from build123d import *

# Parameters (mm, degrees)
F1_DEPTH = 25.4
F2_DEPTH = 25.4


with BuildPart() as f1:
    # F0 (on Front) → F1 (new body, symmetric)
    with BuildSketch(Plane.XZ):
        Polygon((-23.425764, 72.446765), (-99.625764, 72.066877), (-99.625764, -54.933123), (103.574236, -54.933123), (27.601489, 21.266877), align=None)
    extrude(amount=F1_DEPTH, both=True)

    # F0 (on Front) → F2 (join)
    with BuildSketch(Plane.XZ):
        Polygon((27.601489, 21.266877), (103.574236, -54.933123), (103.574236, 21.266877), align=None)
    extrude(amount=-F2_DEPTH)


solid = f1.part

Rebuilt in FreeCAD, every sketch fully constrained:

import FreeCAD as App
import Part
import Sketcher
from FreeCAD import Vector
Q = App.Units.Quantity

doc = App.newDocument("Part")
params = doc.addObject("Spreadsheet::Sheet", "Params")
for row, (alias, value) in enumerate([
    ("sketch1_width", "8 in"),
    ("sketch1_height", "5 in"),
    ("pad1_length", "2 in"),
    ("sketch2_height", "3 in"),
    ("pad2_length", "1 in"),
], start=1):
    params.set(f"A{row}", alias)
    params.set(f"B{row}", "=" + value)
    params.setAlias(f"B{row}", alias)

body = doc.addObject("PartDesign::Body", "Body")

# Sketch on XZ plane
sketch1 = doc.addObject("Sketcher::SketchObject", "Sketch")
body.addObject(sketch1)
sketch1.AttachmentSupport = (doc.XZ_Plane, [""])
sketch1.MapMode = "FlatFace"
sketch1.addGeometry(Part.LineSegment(Vector(-23, 72, 0), Vector(-100, 72, 0)), False)
sketch1.addGeometry(Part.LineSegment(Vector(-100, 72, 0), Vector(-100, -55, 0)), False)
sketch1.addGeometry(Part.LineSegment(Vector(-100, -55, 0), Vector(104, -55, 0)), False)
sketch1.addGeometry(Part.LineSegment(Vector(104, -55, 0), Vector(28, 21, 0)), False)
sketch1.addGeometry(Part.LineSegment(Vector(28, 21, 0), Vector(-23, 72, 0)), False)
sketch1.addConstraint(Sketcher.Constraint("Coincident", 0, 2, 1, 1))
sketch1.addConstraint(Sketcher.Constraint("Coincident", 1, 2, 2, 1))
sketch1.addConstraint(Sketcher.Constraint("Coincident", 2, 2, 3, 1))
sketch1.addConstraint(Sketcher.Constraint("Coincident", 3, 2, 4, 1))
sketch1.addConstraint(Sketcher.Constraint("Coincident", 4, 2, 0, 1))
sketch1.addConstraint(Sketcher.Constraint("Vertical", 1))
sketch1.addConstraint(Sketcher.Constraint("Horizontal", 2))
sketch1.addConstraint(Sketcher.Constraint("Parallel", 3, 4))
sketch1.addConstraint(Sketcher.Constraint("DistanceX", 2, 1, 2, 2, Q("8 in")))
sketch1.addConstraint(Sketcher.Constraint("DistanceY", 1, 2, 1, 1, Q("5 in")))
sketch1.addConstraint(Sketcher.Constraint("DistanceY", 2, 2, 3, 2, Q("3 in")))
sketch1.addConstraint(Sketcher.Constraint("DistanceX", 0, 2, 4, 2, Q("3 in")))
sketch1.addConstraint(Sketcher.Constraint("Distance", 3, 107.602501))
sketch1.addConstraint(Sketcher.Constraint("DistanceX", -1, 1, 3, 2, 27.601489))
sketch1.addConstraint(Sketcher.Constraint("DistanceY", -1, 1, 0, 2, 72.066877))
sketch1.setExpression("Constraints[8]", "Params.sketch1_width")
sketch1.setExpression("Constraints[9]", "Params.sketch1_height")
pad1 = doc.addObject("PartDesign::Pad", "Pad")
body.addObject(pad1)
pad1.Profile = sketch1
pad1.setExpression("Length", "Params.pad1_length")
pad1.Midplane = True

# Sketch on XZ plane
sketch2 = doc.addObject("Sketcher::SketchObject", "Sketch001")
body.addObject(sketch2)
sketch2.AttachmentSupport = (doc.XZ_Plane, [""])
sketch2.MapMode = "FlatFace"
sketch2.addGeometry(Part.LineSegment(Vector(28, 21, 0), Vector(104, -55, 0)), False)
sketch2.addGeometry(Part.LineSegment(Vector(104, -55, 0), Vector(104, 21, 0)), False)
sketch2.addGeometry(Part.LineSegment(Vector(104, 21, 0), Vector(28, 21, 0)), False)
sketch2.addConstraint(Sketcher.Constraint("Coincident", 0, 2, 1, 1))
sketch2.addConstraint(Sketcher.Constraint("Coincident", 1, 2, 2, 1))
sketch2.addConstraint(Sketcher.Constraint("Coincident", 2, 2, 0, 1))
sketch2.addConstraint(Sketcher.Constraint("Vertical", 1))
sketch2.addConstraint(Sketcher.Constraint("Horizontal", 2))
sketch2.addConstraint(Sketcher.Constraint("DistanceY", 1, 1, 1, 2, Q("3 in")))
sketch2.addConstraint(Sketcher.Constraint("Distance", 0, 107.602501))
sketch2.addConstraint(Sketcher.Constraint("DistanceX", -1, 1, 2, 2, 27.601489))
sketch2.addConstraint(Sketcher.Constraint("DistanceY", 0, 2, -1, 1, 54.933123))
sketch2.setExpression("Constraints[5]", "Params.sketch2_height")
pad2 = doc.addObject("PartDesign::Pad", "Pad001")
body.addObject(pad2)
pad2.Profile = sketch2
pad2.setExpression("Length", "Params.pad2_length")
pad2.Reversed = True

doc.recompute()
